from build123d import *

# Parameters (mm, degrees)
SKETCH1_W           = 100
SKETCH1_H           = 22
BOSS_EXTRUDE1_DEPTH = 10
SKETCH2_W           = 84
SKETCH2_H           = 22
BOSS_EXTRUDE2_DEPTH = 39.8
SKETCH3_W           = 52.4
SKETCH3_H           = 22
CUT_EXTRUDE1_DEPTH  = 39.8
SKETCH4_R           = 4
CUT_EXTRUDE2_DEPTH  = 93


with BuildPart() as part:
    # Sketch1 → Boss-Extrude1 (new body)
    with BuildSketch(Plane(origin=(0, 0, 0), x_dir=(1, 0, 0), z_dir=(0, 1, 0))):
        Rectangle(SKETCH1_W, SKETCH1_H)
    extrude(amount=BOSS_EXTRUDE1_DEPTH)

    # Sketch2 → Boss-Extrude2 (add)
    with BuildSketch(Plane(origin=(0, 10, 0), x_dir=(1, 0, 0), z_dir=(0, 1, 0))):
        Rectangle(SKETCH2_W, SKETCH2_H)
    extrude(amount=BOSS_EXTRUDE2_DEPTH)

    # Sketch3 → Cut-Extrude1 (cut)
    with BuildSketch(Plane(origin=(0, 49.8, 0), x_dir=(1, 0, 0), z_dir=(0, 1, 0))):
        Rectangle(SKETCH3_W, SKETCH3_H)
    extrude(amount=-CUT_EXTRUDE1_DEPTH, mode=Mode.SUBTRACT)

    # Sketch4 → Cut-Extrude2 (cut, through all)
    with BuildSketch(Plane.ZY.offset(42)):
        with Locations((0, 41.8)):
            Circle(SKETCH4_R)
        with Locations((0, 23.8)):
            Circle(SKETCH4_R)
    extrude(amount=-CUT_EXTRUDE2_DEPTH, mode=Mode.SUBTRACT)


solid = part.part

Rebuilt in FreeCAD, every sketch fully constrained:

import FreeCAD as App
import Part
import Sketcher


def add_polygon(sketch, points):
    """Adds a closed chain of lines whose ends are joined by coincident constraints."""
    first, n = sketch.GeometryCount, len(points)
    for a, b in zip(points, points[1:] + points[:1]):
        sketch.addGeometry(Part.LineSegment(App.Vector(*a, 0), App.Vector(*b, 0)), False)
    for i in range(n):
        sketch.addConstraint(Sketcher.Constraint("Coincident", first + i, 2, first + (i + 1) % n, 1))

doc = App.newDocument("Part")
body = doc.addObject("PartDesign::Body", "Body")

sketch1 = body.newObject("Sketcher::SketchObject", "Sketch")
sketch1.AttachmentSupport = (doc.getObject("XZ_Plane"), [""])
sketch1.MapMode = "FlatFace"
add_polygon(sketch1, [(-50, -11), (-50, 11), (50, 11), (50, -11)])
sketch1.addConstraint(Sketcher.Constraint("Vertical", 0))
sketch1.addConstraint(Sketcher.Constraint("Horizontal", 1))
sketch1.addConstraint(Sketcher.Constraint("Vertical", 2))
sketch1.addConstraint(Sketcher.Constraint("Horizontal", 3))
sketch1.addConstraint(Sketcher.Constraint("Symmetric", 0, 2, 2, 2, -1, 1))
sketch1.addConstraint(Sketcher.Constraint("DistanceX", 1, 1, 1, 2, 100.0))
sketch1.addConstraint(Sketcher.Constraint("DistanceY", 0, 1, 0, 2, 22.0))
pad1 = body.newObject("PartDesign::Pad", "Pad")
pad1.Profile = sketch1
pad1.Length = 10
pad1.Reversed = True

sketch2 = body.newObject("Sketcher::SketchObject", "Sketch001")
sketch2.AttachmentSupport = (doc.getObject("XZ_Plane"), [""])
sketch2.MapMode = "FlatFace"
sketch2.AttachmentOffset = App.Placement(App.Vector(0, 0, -10), App.Rotation())
add_polygon(sketch2, [(-42, -11), (-42, 11), (42, 11), (42, -11)])
sketch2.addConstraint(Sketcher.Constraint("Vertical", 0))
sketch2.addConstraint(Sketcher.Constraint("Horizontal", 1))
sketch2.addConstraint(Sketcher.Constraint("Vertical", 2))
sketch2.addConstraint(Sketcher.Constraint("Horizontal", 3))
sketch2.addConstraint(Sketcher.Constraint("Symmetric", 0, 2, 2, 2, -1, 1))
sketch2.addConstraint(Sketcher.Constraint("DistanceX", 1, 1, 1, 2, 84.0))
sketch2.addConstraint(Sketcher.Constraint("DistanceY", 0, 1, 0, 2, 22.0))
pad2 = body.newObject("PartDesign::Pad", "Pad001")
pad2.Profile = sketch2
pad2.Length = 39.8
pad2.Reversed = True

sketch3 = body.newObject("Sketcher::SketchObject", "Sketch002")
sketch3.AttachmentSupport = (doc.getObject("XZ_Plane"), [""])
sketch3.MapMode = "FlatFace"
sketch3.AttachmentOffset = App.Placement(App.Vector(0, 0, -49.8), App.Rotation())
add_polygon(sketch3, [(-26.2, -11), (-26.2, 11), (26.2, 11), (26.2, -11)])
sketch3.addConstraint(Sketcher.Constraint("Vertical", 0))
sketch3.addConstraint(Sketcher.Constraint("Horizontal", 1))
sketch3.addConstraint(Sketcher.Constraint("Vertical", 2))
sketch3.addConstraint(Sketcher.Constraint("Horizontal", 3))
sketch3.addConstraint(Sketcher.Constraint("Symmetric", 0, 2, 2, 2, -1, 1))
sketch3.addConstraint(Sketcher.Constraint("DistanceY", 0, 1, 0, 2, 22.0))
sketch3.addConstraint(Sketcher.Constraint("DistanceX", 1, 1, 1, 2, 52.4))
pocket1 = body.newObject("PartDesign::Pocket", "Pocket")
pocket1.Profile = sketch3
pocket1.Length = 39.8
pocket1.Reversed = True

sketch4 = body.newObject("Sketcher::SketchObject", "Sketch003")
sketch4.AttachmentSupport = (doc.getObject("YZ_Plane"), [""])
sketch4.MapMode = "FlatFace"
sketch4.AttachmentOffset = App.Placement(App.Vector(0, 0, -42), App.Rotation())
sketch4.addGeometry(Part.Circle(App.Vector(41.8, 0, 0), App.Vector(0, 0, 1), 4), False)
sketch4.addGeometry(Part.Circle(App.Vector(23.8, 0, 0), App.Vector(0, 0, 1), 4), False)
sketch4.addConstraint(Sketcher.Constraint("Equal", 0, 1))
sketch4.addConstraint(Sketcher.Constraint("PointOnObject", 0, 3, -1))
sketch4.addConstraint(Sketcher.Constraint("PointOnObject", 1, 3, -1))
sketch4.addConstraint(Sketcher.Constraint("Diameter", 0, 8.0))
sketch4.addConstraint(Sketcher.Constraint("DistanceX", 1, 3, 0, 3, 18.0))
sketch4.addConstraint(Sketcher.Constraint("DistanceX", -1, 1, 0, 3, 41.8))
pocket2 = body.newObject("PartDesign::Pocket", "Pocket001")
pocket2.Profile = sketch4
pocket2.Type = "ThroughAll"
pocket2.Reversed = True

doc.recompute()
